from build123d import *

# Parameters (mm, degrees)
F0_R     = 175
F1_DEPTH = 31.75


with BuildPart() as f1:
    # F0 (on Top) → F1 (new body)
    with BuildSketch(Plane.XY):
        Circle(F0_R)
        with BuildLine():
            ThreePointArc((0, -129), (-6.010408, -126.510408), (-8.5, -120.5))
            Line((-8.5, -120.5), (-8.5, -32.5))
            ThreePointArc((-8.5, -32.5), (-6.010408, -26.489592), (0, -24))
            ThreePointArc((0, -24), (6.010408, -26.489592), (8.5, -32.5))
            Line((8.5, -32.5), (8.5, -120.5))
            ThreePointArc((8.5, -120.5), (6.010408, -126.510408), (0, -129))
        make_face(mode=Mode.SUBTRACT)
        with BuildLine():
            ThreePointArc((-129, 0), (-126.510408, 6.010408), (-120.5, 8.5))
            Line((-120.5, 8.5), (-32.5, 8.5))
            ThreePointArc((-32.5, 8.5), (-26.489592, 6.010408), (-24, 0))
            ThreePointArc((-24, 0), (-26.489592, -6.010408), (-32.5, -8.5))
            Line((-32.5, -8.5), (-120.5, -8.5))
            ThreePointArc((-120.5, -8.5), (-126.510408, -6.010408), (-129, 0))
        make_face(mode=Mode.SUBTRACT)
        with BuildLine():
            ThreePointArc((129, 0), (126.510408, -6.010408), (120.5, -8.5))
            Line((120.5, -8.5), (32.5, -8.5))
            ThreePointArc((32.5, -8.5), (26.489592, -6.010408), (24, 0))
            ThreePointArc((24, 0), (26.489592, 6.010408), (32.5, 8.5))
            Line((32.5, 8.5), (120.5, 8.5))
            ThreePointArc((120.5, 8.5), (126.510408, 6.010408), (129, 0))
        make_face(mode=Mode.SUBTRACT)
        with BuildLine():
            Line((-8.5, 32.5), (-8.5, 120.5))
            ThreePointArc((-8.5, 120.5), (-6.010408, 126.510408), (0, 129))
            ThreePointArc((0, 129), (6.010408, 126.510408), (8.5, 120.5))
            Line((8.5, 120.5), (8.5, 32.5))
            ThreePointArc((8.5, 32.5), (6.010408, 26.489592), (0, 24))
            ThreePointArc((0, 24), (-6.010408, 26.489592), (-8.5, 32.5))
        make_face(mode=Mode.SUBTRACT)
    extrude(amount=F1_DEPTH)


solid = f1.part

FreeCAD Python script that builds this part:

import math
import FreeCAD as App
import Part
import Sketcher

V = App.Vector
Q = App.Units.Quantity

doc = App.newDocument("Part")
body = doc.addObject("PartDesign::Body", "Body")

sketch1 = body.newObject("Sketcher::SketchObject", "Sketch")
sketch1.AttachmentSupport = (doc.getObject("XY_Plane"), [""])
sketch1.MapMode = "FlatFace"
sketch1.addGeometry([
    Part.Circle(V(0, 0, 0), V(0, 0, 1), 175),
    Part.ArcOfCircle(Part.Circle(V(0, -121, 0), V(0, 0, 1), 8), math.radians(-90), math.radians(0)),
    Part.ArcOfCircle(Part.Circle(V(0, -121, 0), V(0, 0, 1), 8), math.radians(180), math.radians(270)),
    Part.LineSegment(V(-8, -120, 0), V(-8, -32, 0)),
    Part.ArcOfCircle(Part.Circle(V(0, -32, 0), V(0, 0, 1), 8), math.radians(90), math.radians(180)),
    Part.ArcOfCircle(Part.Circle(V(0, -32, 0), V(0, 0, 1), 8), math.radians(0), math.radians(90)),
    Part.LineSegment(V(8, -32, 0), V(8, -120, 0)),
    Part.ArcOfCircle(Part.Circle(V(-121, 0, 0), V(0, 0, 1), 8), math.radians(180), math.radians(270)),
    Part.ArcOfCircle(Part.Circle(V(-121, 0, 0), V(0, 0, 1), 8), math.radians(90), math.radians(180)),
    Part.LineSegment(V(-120, 8, 0), V(-32, 8, 0)),
    Part.ArcOfCircle(Part.Circle(V(-32, 0, 0), V(0, 0, 1), 8), math.radians(0), math.radians(90)),
    Part.ArcOfCircle(Part.Circle(V(-32, 0, 0), V(0, 0, 1), 8), math.radians(-90), math.radians(0)),
    Part.LineSegment(V(-32, -8, 0), V(-120, -8, 0)),
    Part.ArcOfCircle(Part.Circle(V(121, 0, 0), V(0, 0, 1), 8), math.radians(0), math.radians(90)),
    Part.ArcOfCircle(Part.Circle(V(121, 0, 0), V(0, 0, 1), 8), math.radians(-90), math.radians(0)),
    Part.LineSegment(V(120, -8, 0), V(32, -8, 0)),
    Part.ArcOfCircle(Part.Circle(V(32, 0, 0), V(0, 0, 1), 8), math.radians(180), math.radians(270)),
    Part.ArcOfCircle(Part.Circle(V(32, 0, 0), V(0, 0, 1), 8), math.radians(90), math.radians(180)),
    Part.LineSegment(V(32, 8, 0), V(120, 8, 0)),
    Part.ArcOfCircle(Part.Circle(V(0, 32, 0), V(0, 0, 1), 8), math.radians(180), math.radians(270)),
    Part.LineSegment(V(-8, 32, 0), V(-8, 120, 0)),
    Part.ArcOfCircle(Part.Circle(V(0, 121, 0), V(0, 0, 1), 8), math.radians(90), math.radians(180)),
    Part.ArcOfCircle(Part.Circle(V(0, 121, 0), V(0, 0, 1), 8), math.radians(0), math.radians(90)),
    Part.LineSegment(V(8, 120, 0), V(8, 32, 0)),
    Part.ArcOfCircle(Part.Circle(V(0, 32, 0), V(0, 0, 1), 8), math.radians(-90), math.radians(0)),
], False)
sketch1.addConstraint([
    Sketcher.Constraint("Tangent", 1, 1, 2, 2),
    Sketcher.Constraint("Tangent", 2, 1, 3, 1),
    Sketcher.Constraint("Tangent", 3, 2, 4, 2),
    Sketcher.Constraint("Tangent", 4, 1, 5, 2),
    Sketcher.Constraint("Tangent", 5, 1, 6, 1),
    Sketcher.Constraint("Tangent", 6, 2, 1, 2),
    Sketcher.Constraint("Tangent", 7, 1, 8, 2),
    Sketcher.Constraint("Tangent", 8, 1, 9, 1),
    Sketcher.Constraint("Tangent", 9, 2, 10, 2),
    Sketcher.Constraint("Tangent", 10, 1, 11, 2),
    Sketcher.Constraint("Tangent", 11, 1, 12, 1),
    Sketcher.Constraint("Tangent", 12, 2, 7, 2),
    Sketcher.Constraint("Tangent", 13, 1, 14, 2),
    Sketcher.Constraint("Tangent", 14, 1, 15, 1),
    Sketcher.Constraint("Tangent", 15, 2, 16, 2),
    Sketcher.Constraint("Tangent", 16, 1, 17, 2),
    Sketcher.Constraint("Tangent", 17, 1, 18, 1),
    Sketcher.Constraint("Tangent", 18, 2, 13, 2),
    Sketcher.Constraint("Tangent", 19, 1, 20, 1),
    Sketcher.Constraint("Tangent", 20, 2, 21, 2),
    Sketcher.Constraint("Tangent", 21, 1, 22, 2),
    Sketcher.Constraint("Tangent", 22, 1, 23, 1),
    Sketcher.Constraint("Tangent", 23, 2, 24, 2),
    Sketcher.Constraint("Tangent", 24, 1, 19, 2),
    Sketcher.Constraint("Vertical", 3),
    Sketcher.Constraint("Vertical", 6),
    Sketcher.Constraint("Horizontal", 9),
    Sketcher.Constraint("Horizontal", 12),
    Sketcher.Constraint("Horizontal", 15),
    Sketcher.Constraint("Horizontal", 18),
    Sketcher.Constraint("Vertical", 20),
    Sketcher.Constraint("Vertical", 23),
    Sketcher.Constraint("Coincident", 0, 3, -1, 1),
    Sketcher.Constraint("Equal", 1, 2),
    Sketcher.Constraint("Equal", 2, 4),
    Sketcher.Constraint("Equal", 5, 7),
    Sketcher.Constraint("Equal", 7, 8),
    Sketcher.Constraint("Equal", 8, 10),
    Sketcher.Constraint("Equal", 11, 13),
    Sketcher.Constraint("Equal", 13, 14),
    Sketcher.Constraint("Equal", 14, 16),
    Sketcher.Constraint("Equal", 17, 19),
    Sketcher.Constraint("Equal", 19, 21),
    Sketcher.Constraint("Equal", 21, 22),
    Sketcher.Constraint("Symmetric", 7, 3, 13, 3, -1, 1),
    Sketcher.Constraint("Symmetric", 4, 3, 19, 3, -1, 1),
    Sketcher.Constraint("Symmetric", 10, 1, 16, 1, -1, 1),
    Sketcher.Constraint("Symmetric", 1, 1, 21, 1, -1, 1),
    Sketcher.Constraint("PointOnObject", 1, 3, -2),
    Sketcher.Constraint("PointOnObject", 7, 3, -1),
    Sketcher.Constraint("PointOnObject", 1, 1, -2),
    Sketcher.Constraint("PointOnObject", 4, 1, -2),
    Sketcher.Constraint("PointOnObject", 7, 1, -1),
    Sketcher.Constraint("PointOnObject", 10, 1, -1),
    Sketcher.Constraint("PointOnObject", 13, 1, -1),
    Sketcher.Constraint("PointOnObject", 24, 1, -2),
    Sketcher.Constraint("Equal", 18, 3),
    Sketcher.Constraint("Diameter", 0, Q("350 mm")),
    Sketcher.Constraint("Radius", 1, Q("8.499999 mm")),
    Sketcher.Constraint("DistanceX", 9, 1, 9, 2, Q("88 mm")),
    Sketcher.Constraint("DistanceY", 1, 1, -1, 1, Q("129 mm")),
    Sketcher.Constraint("DistanceX", 7, 1, -1, 1, Q("129 mm")),
])
pad1 = body.newObject("PartDesign::Pad", "Pad")
pad1.Profile = sketch1
pad1.Length = 31.75

doc.recompute()
